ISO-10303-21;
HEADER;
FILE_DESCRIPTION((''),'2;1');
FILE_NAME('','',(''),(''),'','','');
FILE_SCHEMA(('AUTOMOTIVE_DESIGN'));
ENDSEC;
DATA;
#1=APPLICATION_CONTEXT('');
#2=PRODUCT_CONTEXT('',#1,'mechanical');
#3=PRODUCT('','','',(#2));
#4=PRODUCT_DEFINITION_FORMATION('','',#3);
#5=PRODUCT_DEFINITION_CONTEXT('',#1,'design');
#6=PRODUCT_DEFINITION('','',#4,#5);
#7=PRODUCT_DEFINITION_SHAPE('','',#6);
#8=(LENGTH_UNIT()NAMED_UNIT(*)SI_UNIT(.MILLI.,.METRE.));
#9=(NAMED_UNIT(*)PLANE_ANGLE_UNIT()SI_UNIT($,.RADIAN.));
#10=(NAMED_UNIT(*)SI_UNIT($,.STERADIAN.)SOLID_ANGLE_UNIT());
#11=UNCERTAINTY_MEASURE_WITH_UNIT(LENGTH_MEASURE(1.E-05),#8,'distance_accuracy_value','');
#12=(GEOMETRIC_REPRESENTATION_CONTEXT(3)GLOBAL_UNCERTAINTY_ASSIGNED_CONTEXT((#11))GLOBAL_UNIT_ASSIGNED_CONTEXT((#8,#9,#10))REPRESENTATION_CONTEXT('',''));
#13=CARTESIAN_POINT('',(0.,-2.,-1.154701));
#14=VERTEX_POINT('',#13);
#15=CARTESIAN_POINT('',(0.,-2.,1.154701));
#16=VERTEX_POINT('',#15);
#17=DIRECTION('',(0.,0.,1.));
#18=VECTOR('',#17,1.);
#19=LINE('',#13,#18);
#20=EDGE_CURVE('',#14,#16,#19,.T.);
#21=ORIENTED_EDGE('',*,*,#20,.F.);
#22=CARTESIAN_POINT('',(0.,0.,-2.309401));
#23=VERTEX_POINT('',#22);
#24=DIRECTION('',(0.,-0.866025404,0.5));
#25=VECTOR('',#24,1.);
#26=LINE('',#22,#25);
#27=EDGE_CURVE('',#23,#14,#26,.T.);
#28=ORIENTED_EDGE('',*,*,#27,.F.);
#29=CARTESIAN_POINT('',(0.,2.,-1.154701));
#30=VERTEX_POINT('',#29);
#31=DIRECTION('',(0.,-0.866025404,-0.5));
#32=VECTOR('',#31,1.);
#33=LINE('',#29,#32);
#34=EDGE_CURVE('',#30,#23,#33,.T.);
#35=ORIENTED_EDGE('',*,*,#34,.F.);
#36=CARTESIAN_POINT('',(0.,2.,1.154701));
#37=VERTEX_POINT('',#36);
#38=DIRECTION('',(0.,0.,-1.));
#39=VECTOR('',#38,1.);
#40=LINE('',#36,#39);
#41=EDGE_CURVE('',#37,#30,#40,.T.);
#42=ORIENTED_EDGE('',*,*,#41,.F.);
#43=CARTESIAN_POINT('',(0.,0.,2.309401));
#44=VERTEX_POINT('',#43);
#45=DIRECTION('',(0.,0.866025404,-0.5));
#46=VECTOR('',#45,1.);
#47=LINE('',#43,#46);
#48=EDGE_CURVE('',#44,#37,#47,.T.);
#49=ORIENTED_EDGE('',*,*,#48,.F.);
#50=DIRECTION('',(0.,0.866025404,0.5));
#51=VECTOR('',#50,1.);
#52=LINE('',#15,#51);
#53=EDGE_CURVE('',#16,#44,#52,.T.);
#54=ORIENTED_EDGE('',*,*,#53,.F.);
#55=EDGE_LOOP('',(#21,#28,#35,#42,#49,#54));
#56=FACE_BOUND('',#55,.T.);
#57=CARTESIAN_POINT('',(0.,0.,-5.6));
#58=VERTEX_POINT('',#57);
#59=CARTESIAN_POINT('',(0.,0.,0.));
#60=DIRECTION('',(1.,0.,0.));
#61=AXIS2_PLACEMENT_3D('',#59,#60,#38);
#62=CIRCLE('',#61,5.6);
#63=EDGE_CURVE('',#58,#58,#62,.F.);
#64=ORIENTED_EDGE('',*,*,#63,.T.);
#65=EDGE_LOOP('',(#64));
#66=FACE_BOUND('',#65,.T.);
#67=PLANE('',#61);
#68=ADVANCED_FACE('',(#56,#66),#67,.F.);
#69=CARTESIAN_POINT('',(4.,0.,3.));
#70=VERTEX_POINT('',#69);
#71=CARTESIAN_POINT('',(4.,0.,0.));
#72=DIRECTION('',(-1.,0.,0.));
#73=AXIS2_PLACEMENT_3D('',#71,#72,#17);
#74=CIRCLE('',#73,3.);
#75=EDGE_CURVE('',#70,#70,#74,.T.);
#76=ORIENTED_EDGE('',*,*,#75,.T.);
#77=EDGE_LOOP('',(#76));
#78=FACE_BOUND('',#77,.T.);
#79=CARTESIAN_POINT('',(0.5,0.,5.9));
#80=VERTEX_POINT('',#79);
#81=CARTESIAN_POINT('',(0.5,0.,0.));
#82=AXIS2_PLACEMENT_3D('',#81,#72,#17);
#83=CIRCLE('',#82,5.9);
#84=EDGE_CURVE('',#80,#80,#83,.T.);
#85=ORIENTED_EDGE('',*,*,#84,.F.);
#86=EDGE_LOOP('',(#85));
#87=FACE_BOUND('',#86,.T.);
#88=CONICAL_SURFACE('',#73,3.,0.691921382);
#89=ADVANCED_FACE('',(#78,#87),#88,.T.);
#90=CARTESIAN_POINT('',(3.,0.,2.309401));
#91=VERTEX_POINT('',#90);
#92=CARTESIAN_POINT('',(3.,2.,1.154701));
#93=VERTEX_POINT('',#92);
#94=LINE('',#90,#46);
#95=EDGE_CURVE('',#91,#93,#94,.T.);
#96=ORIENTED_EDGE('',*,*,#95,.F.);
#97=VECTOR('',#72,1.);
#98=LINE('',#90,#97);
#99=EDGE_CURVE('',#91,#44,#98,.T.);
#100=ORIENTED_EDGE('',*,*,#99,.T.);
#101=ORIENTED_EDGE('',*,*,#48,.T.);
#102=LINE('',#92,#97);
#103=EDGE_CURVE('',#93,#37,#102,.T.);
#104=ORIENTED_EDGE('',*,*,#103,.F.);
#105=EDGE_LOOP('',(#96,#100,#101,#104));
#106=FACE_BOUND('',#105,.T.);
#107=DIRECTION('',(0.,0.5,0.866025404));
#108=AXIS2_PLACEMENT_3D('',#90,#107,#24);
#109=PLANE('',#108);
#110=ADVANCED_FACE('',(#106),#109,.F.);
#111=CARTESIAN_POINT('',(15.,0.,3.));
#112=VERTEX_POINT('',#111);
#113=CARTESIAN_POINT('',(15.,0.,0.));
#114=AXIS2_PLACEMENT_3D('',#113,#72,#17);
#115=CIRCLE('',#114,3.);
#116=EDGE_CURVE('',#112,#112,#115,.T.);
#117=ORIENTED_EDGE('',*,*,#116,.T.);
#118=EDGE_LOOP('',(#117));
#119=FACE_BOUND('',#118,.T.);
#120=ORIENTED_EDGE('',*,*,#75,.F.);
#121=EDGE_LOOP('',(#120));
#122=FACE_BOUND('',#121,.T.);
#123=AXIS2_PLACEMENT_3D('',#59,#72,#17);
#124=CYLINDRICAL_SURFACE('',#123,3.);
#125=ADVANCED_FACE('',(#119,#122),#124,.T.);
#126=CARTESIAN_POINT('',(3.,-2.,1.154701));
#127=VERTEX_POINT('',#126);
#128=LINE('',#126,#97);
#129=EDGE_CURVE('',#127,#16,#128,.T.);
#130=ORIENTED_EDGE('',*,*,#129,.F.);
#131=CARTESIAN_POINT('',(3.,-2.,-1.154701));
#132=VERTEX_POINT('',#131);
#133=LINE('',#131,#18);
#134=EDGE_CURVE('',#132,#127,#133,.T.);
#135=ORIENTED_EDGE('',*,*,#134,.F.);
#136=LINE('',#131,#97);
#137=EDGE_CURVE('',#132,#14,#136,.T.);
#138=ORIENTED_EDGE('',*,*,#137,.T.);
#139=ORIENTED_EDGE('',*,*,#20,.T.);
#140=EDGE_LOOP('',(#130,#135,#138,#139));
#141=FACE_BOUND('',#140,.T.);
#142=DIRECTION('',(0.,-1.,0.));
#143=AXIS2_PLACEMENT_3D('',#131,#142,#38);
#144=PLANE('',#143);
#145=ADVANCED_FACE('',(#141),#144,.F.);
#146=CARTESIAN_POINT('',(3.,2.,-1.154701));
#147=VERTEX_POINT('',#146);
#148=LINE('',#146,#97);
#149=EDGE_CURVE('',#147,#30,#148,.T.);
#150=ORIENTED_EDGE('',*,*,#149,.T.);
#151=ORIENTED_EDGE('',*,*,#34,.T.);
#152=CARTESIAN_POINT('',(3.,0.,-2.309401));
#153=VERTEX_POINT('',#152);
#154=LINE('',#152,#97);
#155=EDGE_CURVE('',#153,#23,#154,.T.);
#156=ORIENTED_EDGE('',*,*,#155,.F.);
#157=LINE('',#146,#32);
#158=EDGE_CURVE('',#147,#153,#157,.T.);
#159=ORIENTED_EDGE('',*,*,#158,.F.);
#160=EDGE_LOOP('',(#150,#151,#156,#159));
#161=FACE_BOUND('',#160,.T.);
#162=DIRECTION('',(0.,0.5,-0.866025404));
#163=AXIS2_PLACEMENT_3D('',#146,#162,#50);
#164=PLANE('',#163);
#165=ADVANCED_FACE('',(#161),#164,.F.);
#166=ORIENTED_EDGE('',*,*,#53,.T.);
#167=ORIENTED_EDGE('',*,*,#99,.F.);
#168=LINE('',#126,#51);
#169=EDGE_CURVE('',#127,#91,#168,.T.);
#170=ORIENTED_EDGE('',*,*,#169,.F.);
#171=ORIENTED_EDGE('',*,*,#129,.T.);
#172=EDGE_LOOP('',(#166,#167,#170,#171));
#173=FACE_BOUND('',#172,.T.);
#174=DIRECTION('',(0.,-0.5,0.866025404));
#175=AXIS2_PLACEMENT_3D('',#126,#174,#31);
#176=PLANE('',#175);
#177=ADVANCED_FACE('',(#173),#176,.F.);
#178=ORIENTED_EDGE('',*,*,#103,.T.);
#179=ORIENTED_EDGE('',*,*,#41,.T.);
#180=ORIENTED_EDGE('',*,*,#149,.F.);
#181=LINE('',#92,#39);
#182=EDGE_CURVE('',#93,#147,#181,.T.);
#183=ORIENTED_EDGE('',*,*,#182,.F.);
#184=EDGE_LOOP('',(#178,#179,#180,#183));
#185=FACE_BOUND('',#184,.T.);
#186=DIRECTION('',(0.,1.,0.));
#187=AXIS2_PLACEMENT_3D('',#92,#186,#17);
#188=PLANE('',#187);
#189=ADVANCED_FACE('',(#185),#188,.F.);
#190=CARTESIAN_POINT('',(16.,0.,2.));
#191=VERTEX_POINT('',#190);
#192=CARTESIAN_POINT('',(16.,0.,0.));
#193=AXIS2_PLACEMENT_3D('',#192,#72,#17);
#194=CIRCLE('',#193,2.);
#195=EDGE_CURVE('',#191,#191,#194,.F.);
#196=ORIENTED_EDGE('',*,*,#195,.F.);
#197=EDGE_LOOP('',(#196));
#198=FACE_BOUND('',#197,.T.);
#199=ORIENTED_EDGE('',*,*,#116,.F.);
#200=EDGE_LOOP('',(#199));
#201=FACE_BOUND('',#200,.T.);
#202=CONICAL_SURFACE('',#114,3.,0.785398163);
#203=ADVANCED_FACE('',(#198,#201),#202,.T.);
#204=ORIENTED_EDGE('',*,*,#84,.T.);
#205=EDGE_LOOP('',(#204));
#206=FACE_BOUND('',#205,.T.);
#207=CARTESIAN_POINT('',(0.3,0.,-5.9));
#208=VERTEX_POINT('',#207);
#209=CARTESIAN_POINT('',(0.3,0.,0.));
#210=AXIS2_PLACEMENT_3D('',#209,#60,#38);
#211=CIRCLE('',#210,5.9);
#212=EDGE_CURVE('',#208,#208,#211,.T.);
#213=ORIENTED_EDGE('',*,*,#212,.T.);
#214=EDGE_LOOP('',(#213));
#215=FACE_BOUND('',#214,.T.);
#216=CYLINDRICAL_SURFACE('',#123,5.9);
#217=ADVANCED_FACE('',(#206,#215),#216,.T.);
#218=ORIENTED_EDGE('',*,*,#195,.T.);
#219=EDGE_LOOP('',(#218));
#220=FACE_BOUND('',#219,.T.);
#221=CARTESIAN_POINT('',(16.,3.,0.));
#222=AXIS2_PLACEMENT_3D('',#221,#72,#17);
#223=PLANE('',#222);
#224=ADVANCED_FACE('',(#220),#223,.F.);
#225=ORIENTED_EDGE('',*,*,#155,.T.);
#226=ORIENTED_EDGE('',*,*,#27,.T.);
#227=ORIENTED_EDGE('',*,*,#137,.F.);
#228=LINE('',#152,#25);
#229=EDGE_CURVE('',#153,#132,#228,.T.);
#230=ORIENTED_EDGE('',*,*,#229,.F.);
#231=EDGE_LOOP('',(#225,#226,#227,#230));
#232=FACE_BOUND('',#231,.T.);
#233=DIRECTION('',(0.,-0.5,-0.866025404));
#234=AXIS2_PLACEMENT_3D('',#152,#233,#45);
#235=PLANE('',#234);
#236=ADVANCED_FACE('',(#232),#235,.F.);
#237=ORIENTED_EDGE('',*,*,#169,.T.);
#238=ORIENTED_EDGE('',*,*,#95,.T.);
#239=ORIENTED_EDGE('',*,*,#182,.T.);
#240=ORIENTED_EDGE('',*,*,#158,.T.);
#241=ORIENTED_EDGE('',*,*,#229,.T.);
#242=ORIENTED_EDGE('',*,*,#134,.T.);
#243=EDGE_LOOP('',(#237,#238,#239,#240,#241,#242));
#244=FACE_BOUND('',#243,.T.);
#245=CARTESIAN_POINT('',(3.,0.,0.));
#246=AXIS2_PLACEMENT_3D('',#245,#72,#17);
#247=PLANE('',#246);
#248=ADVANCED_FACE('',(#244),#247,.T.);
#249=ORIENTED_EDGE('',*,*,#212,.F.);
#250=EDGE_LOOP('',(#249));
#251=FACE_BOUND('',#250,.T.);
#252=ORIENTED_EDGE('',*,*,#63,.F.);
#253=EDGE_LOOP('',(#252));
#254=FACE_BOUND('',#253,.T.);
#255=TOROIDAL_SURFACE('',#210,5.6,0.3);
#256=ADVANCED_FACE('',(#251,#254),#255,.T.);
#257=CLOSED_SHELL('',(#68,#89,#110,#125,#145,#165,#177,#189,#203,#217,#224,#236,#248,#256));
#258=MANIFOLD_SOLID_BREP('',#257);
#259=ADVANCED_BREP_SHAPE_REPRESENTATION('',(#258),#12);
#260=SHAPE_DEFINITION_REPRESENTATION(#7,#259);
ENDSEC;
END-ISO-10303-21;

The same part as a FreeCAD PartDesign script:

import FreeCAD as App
import Part
import Sketcher
from FreeCAD import Vector
Q = App.Units.Quantity


def edges_at(feature, points):
    """Names of the edges that pass closest to the given points."""
    edges = feature.Shape.Edges
    near = lambda p: min(range(len(edges)), key=lambda i: edges[i].distToShape(Part.Vertex(*p))[0])
    return sorted({f"Edge{near(p) + 1}" for p in points})


def add_polygon(sketch, points):
    """Adds a closed chain of lines whose ends are joined by coincident constraints."""
    first, n = sketch.GeometryCount, len(points)
    for a, b in zip(points, points[1:] + points[:1]):
        sketch.addGeometry(Part.LineSegment(App.Vector(*a, 0), App.Vector(*b, 0)), False)
    for i in range(n):
        sketch.addConstraint(Sketcher.Constraint("Coincident", first + i, 2, first + (i + 1) % n, 1))

doc = App.newDocument("Part")
body = doc.addObject("PartDesign::Body", "Body")

# Sketch on XY plane
sketch1 = body.newObject("Sketcher::SketchObject", "Sketch")
sketch1.AttachmentSupport = (doc.getObject("XY_Plane"), [""])
sketch1.MapMode = "FlatFace"
add_polygon(sketch1, [(0, 5.9), (0, 0), (16, 0), (16, 3), (4, 3), (0.5, 5.9)])  # lines 0-5
sketch1.addConstraint([
    Sketcher.Constraint("Vertical", 0),
    Sketcher.Constraint("Horizontal", 1),
    Sketcher.Constraint("Vertical", 2),
    Sketcher.Constraint("Horizontal", 3),
    Sketcher.Constraint("Horizontal", 5),
    Sketcher.Constraint("Coincident", 0, 2, -1, 1),
    Sketcher.Constraint("DistanceX", 1, 1, 1, 2, Q("16 mm")),
    Sketcher.Constraint("DistanceX", 3, 2, 3, 1, Q("12 mm")),
    Sketcher.Constraint("DistanceY", 2, 1, 2, 2, Q("3 mm")),
    Sketcher.Constraint("DistanceX", 5, 2, 5, 1, Q("0.5 mm")),
    Sketcher.Constraint("DistanceY", 0, 2, 0, 1, Q("5.9 mm")),
])
revolution = body.newObject("PartDesign::Revolution", "Revolution")
revolution.Profile = sketch1
revolution.ReferenceAxis = (sketch1, ["H_Axis"])
revolution.Angle = 360

# Sketch on YZ plane
sketch2 = body.newObject("Sketcher::SketchObject", "Sketch001")
sketch2.AttachmentSupport = (doc.getObject("YZ_Plane"), [""])
sketch2.MapMode = "FlatFace"
add_polygon(sketch2, [(2, 1.2), (2, -1.2), (0, -2.3), (-2, -1.2), (-2, 1.2), (0, 2.3)])  # lines 0-5
sketch2.addConstraint([
    Sketcher.Constraint("Vertical", 0),
    Sketcher.Constraint("Vertical", 3),
    Sketcher.Constraint("Symmetric", 0, 2, 3, 2, -1, 1),
    Sketcher.Constraint("Symmetric", 1, 2, 4, 2, -1, 1),
    Sketcher.Constraint("PointOnObject", 1, 2, -2),
    Sketcher.Constraint("Parallel", 2, 5),
    Sketcher.Constraint("Horizontal", 0, 2, 2, 2),
    Sketcher.Constraint("Angle", 1, Q("-150 deg")),
    Sketcher.Constraint("DistanceX", -1, 1, 0, 2, Q("2 mm")),
    Sketcher.Constraint("DistanceY", 0, 2, 0, 1, Q("2.309401 mm")),
])
pocket1 = body.newObject("PartDesign::Pocket", "Pocket")
pocket1.Profile = sketch2
pocket1.Length = 3
pocket1.Reversed = True
doc.recompute()

fillet = body.newObject("PartDesign::Fillet", "Fillet")
fillet.Base = (pocket1, edges_at(pocket1, [(0, 0, -5.9)]))
fillet.Radius = 0.3
doc.recompute()

chamfer = body.newObject("PartDesign::Chamfer", "Chamfer")
chamfer.Base = (fillet, edges_at(fillet, [(16, 0, -3)]))
chamfer.Size = 1

doc.recompute()
